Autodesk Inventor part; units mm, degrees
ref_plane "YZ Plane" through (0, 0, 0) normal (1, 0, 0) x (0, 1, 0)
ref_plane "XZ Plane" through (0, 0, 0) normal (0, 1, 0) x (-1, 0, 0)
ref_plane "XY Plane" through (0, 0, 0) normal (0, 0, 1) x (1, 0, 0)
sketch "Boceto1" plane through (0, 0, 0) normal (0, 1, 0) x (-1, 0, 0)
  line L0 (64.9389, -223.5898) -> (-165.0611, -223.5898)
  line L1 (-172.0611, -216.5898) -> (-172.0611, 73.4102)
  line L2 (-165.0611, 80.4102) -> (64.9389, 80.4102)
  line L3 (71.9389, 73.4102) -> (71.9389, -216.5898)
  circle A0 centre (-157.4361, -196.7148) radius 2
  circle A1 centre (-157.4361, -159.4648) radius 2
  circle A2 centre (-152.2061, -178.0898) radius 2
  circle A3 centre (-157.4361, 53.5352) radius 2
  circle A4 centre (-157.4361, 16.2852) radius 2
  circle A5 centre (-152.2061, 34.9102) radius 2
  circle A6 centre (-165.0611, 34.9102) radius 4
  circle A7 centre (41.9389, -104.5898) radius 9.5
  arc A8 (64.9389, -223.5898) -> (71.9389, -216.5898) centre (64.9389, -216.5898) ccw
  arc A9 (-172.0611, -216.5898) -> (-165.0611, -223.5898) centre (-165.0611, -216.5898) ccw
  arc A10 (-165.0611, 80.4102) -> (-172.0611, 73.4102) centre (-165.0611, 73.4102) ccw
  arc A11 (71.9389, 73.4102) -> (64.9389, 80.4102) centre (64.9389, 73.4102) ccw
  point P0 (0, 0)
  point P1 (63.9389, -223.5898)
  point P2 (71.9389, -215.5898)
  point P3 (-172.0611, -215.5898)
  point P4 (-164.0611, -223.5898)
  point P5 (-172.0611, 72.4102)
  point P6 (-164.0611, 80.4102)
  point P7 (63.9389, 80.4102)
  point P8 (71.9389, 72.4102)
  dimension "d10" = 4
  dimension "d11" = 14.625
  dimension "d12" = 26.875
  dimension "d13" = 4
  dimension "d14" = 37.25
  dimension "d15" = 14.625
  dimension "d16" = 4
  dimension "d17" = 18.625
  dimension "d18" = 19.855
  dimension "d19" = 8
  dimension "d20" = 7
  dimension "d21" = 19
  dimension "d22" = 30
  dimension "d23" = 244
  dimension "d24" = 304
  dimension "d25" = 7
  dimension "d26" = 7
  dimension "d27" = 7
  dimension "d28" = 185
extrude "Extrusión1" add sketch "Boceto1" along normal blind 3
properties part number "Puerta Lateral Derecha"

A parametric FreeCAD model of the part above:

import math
import FreeCAD as App
import Part
import Sketcher
from FreeCAD import Vector

doc = App.newDocument("Part")
params = doc.addObject("Spreadsheet::Sheet", "Params")
for row, (alias, value) in enumerate([
    ("sketch1_diameter", "4 mm"),
    ("sketch1_diameter2", "19 mm"),
    ("sketch1_diameter3", "8 mm"),
    ("sketch1_radius", "7 mm"),
    ("sketch1_width", "230 mm"),
    ("pad1_length", "3 mm"),
], start=1):
    params.set(f"A{row}", alias)
    params.set(f"B{row}", "=" + value)
    params.setAlias(f"B{row}", alias)

body = doc.addObject("PartDesign::Body", "Body")

sketch1 = doc.addObject("Sketcher::SketchObject", "Sketch")
body.addObject(sketch1)
sketch1.AttachmentSupport = (doc.XZ_Plane, [""])
sketch1.MapMode = "FlatFace"
sketch1.addGeometry(Part.LineSegment(Vector(165.1, -223.6, 0), Vector(-64.9, -223.6, 0)), False)
sketch1.addGeometry(Part.ArcOfCircle(Part.Circle(Vector(-64.9, -216.6, 0), Vector(0, 0, 1), 7), math.radians(180), math.radians(270)), False)
sketch1.addGeometry(Part.LineSegment(Vector(-71.9, -216.6, 0), Vector(-71.9, 73.4, 0)), False)
sketch1.addGeometry(Part.ArcOfCircle(Part.Circle(Vector(-64.9, 73.4, 0), Vector(0, 0, 1), 7), math.radians(90), math.radians(180)), False)
sketch1.addGeometry(Part.LineSegment(Vector(-64.9, 80.4, 0), Vector(165.1, 80.4, 0)), False)
sketch1.addGeometry(Part.ArcOfCircle(Part.Circle(Vector(165.1, 73.4, 0), Vector(0, 0, 1), 7), math.radians(0), math.radians(90)), False)
sketch1.addGeometry(Part.LineSegment(Vector(172.1, 73.4, 0), Vector(172.1, -216.6, 0)), False)
sketch1.addGeometry(Part.ArcOfCircle(Part.Circle(Vector(165.1, -216.6, 0), Vector(0, 0, 1), 7), math.radians(-90), math.radians(0)), False)
sketch1.addGeometry(Part.Circle(Vector(157.4, -196.7, 0), Vector(0, 0, 1), 2), False)
sketch1.addGeometry(Part.Circle(Vector(152.2, -178.1, 0), Vector(0, 0, 1), 2), False)
sketch1.addGeometry(Part.Circle(Vector(157.4, -159.5, 0), Vector(0, 0, 1), 2), False)
sketch1.addGeometry(Part.Circle(Vector(-41.9, -104.6, 0), Vector(0, 0, 1), 9.5), False)
sketch1.addGeometry(Part.Circle(Vector(157.4, 16.3, 0), Vector(0, 0, 1), 2), False)
sketch1.addGeometry(Part.Circle(Vector(165.1, 34.9, 0), Vector(0, 0, 1), 4), False)
sketch1.addGeometry(Part.Circle(Vector(152.2, 34.9, 0), Vector(0, 0, 1), 2), False)
sketch1.addGeometry(Part.Circle(Vector(157.4, 53.5, 0), Vector(0, 0, 1), 2), False)
sketch1.addConstraint(Sketcher.Constraint("Tangent", 0, 2, 1, 2))
sketch1.addConstraint(Sketcher.Constraint("Tangent", 1, 1, 2, 1))
sketch1.addConstraint(Sketcher.Constraint("Tangent", 2, 2, 3, 2))
sketch1.addConstraint(Sketcher.Constraint("Tangent", 3, 1, 4, 1))
sketch1.addConstraint(Sketcher.Constraint("Tangent", 4, 2, 5, 2))
sketch1.addConstraint(Sketcher.Constraint("Tangent", 5, 1, 6, 1))
sketch1.addConstraint(Sketcher.Constraint("Tangent", 6, 2, 7, 2))
sketch1.addConstraint(Sketcher.Constraint("Tangent", 7, 1, 0, 1))
sketch1.addConstraint(Sketcher.Constraint("Horizontal", 0))
sketch1.addConstraint(Sketcher.Constraint("Vertical", 2))
sketch1.addConstraint(Sketcher.Constraint("Horizontal", 4))
sketch1.addConstraint(Sketcher.Constraint("Vertical", 6))
sketch1.addConstraint(Sketcher.Constraint("Equal", 1, 3))
sketch1.addConstraint(Sketcher.Constraint("Equal", 3, 5))
sketch1.addConstraint(Sketcher.Constraint("Equal", 5, 7))
sketch1.addConstraint(Sketcher.Constraint("Equal", 8, 9))
sketch1.addConstraint(Sketcher.Constraint("Equal", 9, 10))
sketch1.addConstraint(Sketcher.Constraint("Equal", 10, 12))
sketch1.addConstraint(Sketcher.Constraint("Equal", 12, 14))
sketch1.addConstraint(Sketcher.Constraint("Equal", 14, 15))
sketch1.addConstraint(Sketcher.Constraint("Horizontal", 13, 3, 14, 3))
sketch1.addConstraint(Sketcher.Constraint("Vertical", 8, 3, 10, 3))
sketch1.addConstraint(Sketcher.Constraint("Vertical", 10, 3, 12, 3))
sketch1.addConstraint(Sketcher.Constraint("Vertical", 7, 3, 13, 3))
sketch1.addConstraint(Sketcher.Constraint("Vertical", 9, 3, 14, 3))
sketch1.addConstraint(Sketcher.Constraint("Vertical", 12, 3, 15, 3))
sketch1.addConstraint(Sketcher.Constraint("Diameter", 8, 4.0))
sketch1.addConstraint(Sketcher.Constraint("Diameter", 11, 19.0))
sketch1.addConstraint(Sketcher.Constraint("Diameter", 13, 8.0))
sketch1.addConstraint(Sketcher.Constraint("Radius", 1, 7.0))
sketch1.addConstraint(Sketcher.Constraint("DistanceX", 1, 1, 11, 3, 30.0))
sketch1.addConstraint(Sketcher.Constraint("DistanceY", 11, 3, 3, 1, 185.0))
sketch1.addConstraint(Sketcher.Constraint("DistanceX", 0, 2, 0, 1, 230.0))
sketch1.addConstraint(Sketcher.Constraint("DistanceY", 2, 1, 2, 2, 290.0))
sketch1.addConstraint(Sketcher.Constraint("DistanceY", 8, 3, 10, 3, 37.25))
sketch1.addConstraint(Sketcher.Constraint("DistanceY", 12, 3, 15, 3, 37.25))
sketch1.addConstraint(Sketcher.Constraint("DistanceY", 8, 3, 9, 3, 18.625))
sketch1.addConstraint(Sketcher.Constraint("DistanceY", 8, 3, 12, 3, 213.0))
sketch1.addConstraint(Sketcher.Constraint("DistanceY", 12, 3, 13, 3, 18.625))
sketch1.addConstraint(Sketcher.Constraint("DistanceY", 0, 2, 8, 3, 26.875))
sketch1.addConstraint(Sketcher.Constraint("DistanceX", 15, 3, 5, 1, 14.625))
sketch1.addConstraint(Sketcher.Constraint("DistanceX", 14, 3, 5, 1, 19.855))
sketch1.addConstraint(Sketcher.Constraint("DistanceX", 1, 3, -1, 1, 64.939))
sketch1.addConstraint(Sketcher.Constraint("DistanceY", 1, 3, -1, 1, 216.5898))
sketch1.setExpression("Constraints[26]", "Params.sketch1_diameter")
sketch1.setExpression("Constraints[27]", "Params.sketch1_diameter2")
sketch1.setExpression("Constraints[28]", "Params.sketch1_diameter3")
sketch1.setExpression("Constraints[29]", "Params.sketch1_radius")
sketch1.setExpression("Constraints[32]", "Params.sketch1_width")
pad1 = doc.addObject("PartDesign::Pad", "Pad")
body.addObject(pad1)
pad1.Profile = sketch1
pad1.setExpression("Length", "Params.pad1_length")
pad1.Reversed = True

doc.recompute()
